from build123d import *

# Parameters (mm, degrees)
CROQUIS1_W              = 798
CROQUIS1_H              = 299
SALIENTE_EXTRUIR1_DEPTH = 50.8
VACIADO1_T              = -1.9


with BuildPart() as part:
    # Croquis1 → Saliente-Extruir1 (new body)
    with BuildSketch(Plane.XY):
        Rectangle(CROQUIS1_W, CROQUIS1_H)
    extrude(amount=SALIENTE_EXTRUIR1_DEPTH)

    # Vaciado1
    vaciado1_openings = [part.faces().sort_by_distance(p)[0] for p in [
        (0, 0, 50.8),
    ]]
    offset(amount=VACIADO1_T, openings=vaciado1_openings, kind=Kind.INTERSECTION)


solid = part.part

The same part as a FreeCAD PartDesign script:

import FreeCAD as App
import Part
import Sketcher
from FreeCAD import Vector


def faces_at(feature, points):
    """Names of the faces that lie closest to the given points."""
    faces = feature.Shape.Faces
    near = lambda p: min(range(len(faces)), key=lambda i: faces[i].distToShape(Part.Vertex(*p))[0])
    return sorted({f"Face{near(p) + 1}" for p in points})


def add_polygon(sketch, points):
    """Adds a closed chain of lines whose ends are joined by coincident constraints."""
    first, n = sketch.GeometryCount, len(points)
    for a, b in zip(points, points[1:] + points[:1]):
        sketch.addGeometry(Part.LineSegment(App.Vector(*a, 0), App.Vector(*b, 0)), False)
    for i in range(n):
        sketch.addConstraint(Sketcher.Constraint("Coincident", first + i, 2, first + (i + 1) % n, 1))

doc = App.newDocument("Part")
body = doc.addObject("PartDesign::Body", "Body")

# Sketch on XY plane
sketch1 = body.newObject("Sketcher::SketchObject", "Sketch")
sketch1.AttachmentSupport = (doc.getObject("XY_Plane"), [""])
sketch1.MapMode = "FlatFace"
add_polygon(sketch1, [(-399, 149.5), (-399, -149.5), (399, -149.5), (399, 149.5)])  # lines 0-3
sketch1.addConstraint(Sketcher.Constraint("Vertical", 0))
sketch1.addConstraint(Sketcher.Constraint("Horizontal", 1))
sketch1.addConstraint(Sketcher.Constraint("Vertical", 2))
sketch1.addConstraint(Sketcher.Constraint("Horizontal", 3))
sketch1.addConstraint(Sketcher.Constraint("Symmetric", 0, 2, 2, 2, -1, 1))
sketch1.addConstraint(Sketcher.Constraint("DistanceX", 1, 1, 1, 2, 798.0))
sketch1.addConstraint(Sketcher.Constraint("DistanceY", 0, 2, 0, 1, 299.0))
pad1 = body.newObject("PartDesign::Pad", "Pad")
pad1.Profile = sketch1
pad1.Length = 50.8
doc.recompute()

thickness = body.newObject("PartDesign::Thickness", "Thickness")
thickness.Base = (pad1, faces_at(pad1, [(0, 0, 50.8)]))
thickness.Value = 1.9
thickness.Reversed = True
thickness.Join = "Intersection"

doc.recompute()
